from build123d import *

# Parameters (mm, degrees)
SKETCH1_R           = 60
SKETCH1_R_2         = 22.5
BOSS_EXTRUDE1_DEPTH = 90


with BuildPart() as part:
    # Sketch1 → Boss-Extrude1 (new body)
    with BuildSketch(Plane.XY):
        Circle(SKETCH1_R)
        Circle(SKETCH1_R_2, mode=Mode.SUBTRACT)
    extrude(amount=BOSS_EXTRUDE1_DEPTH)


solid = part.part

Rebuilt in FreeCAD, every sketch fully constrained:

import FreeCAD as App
import Part
import Sketcher

V = App.Vector

doc = App.newDocument("Part")
body = doc.addObject("PartDesign::Body", "Body")

# Sketch on XY plane
sketch1 = body.newObject("Sketcher::SketchObject", "Sketch")
sketch1.AttachmentSupport = (doc.getObject("XY_Plane"), [""])
sketch1.MapMode = "FlatFace"
sketch1.addGeometry([
    Part.Circle(V(0, 0, 0), V(0, 0, 1), 60),
    Part.Circle(V(0, 0, 0), V(0, 0, 1), 22),
], False)
sketch1.addConstraint([
    Sketcher.Constraint("Coincident", 0, 3, -1, 1),
    Sketcher.Constraint("Coincident", 1, 3, -1, 1),
    Sketcher.Constraint("Diameter", 0, 120.0),
    Sketcher.Constraint("Diameter", 1, 45.0),
])
pad1 = body.newObject("PartDesign::Pad", "Pad")
pad1.Profile = sketch1
pad1.Length = 90

doc.recompute()
